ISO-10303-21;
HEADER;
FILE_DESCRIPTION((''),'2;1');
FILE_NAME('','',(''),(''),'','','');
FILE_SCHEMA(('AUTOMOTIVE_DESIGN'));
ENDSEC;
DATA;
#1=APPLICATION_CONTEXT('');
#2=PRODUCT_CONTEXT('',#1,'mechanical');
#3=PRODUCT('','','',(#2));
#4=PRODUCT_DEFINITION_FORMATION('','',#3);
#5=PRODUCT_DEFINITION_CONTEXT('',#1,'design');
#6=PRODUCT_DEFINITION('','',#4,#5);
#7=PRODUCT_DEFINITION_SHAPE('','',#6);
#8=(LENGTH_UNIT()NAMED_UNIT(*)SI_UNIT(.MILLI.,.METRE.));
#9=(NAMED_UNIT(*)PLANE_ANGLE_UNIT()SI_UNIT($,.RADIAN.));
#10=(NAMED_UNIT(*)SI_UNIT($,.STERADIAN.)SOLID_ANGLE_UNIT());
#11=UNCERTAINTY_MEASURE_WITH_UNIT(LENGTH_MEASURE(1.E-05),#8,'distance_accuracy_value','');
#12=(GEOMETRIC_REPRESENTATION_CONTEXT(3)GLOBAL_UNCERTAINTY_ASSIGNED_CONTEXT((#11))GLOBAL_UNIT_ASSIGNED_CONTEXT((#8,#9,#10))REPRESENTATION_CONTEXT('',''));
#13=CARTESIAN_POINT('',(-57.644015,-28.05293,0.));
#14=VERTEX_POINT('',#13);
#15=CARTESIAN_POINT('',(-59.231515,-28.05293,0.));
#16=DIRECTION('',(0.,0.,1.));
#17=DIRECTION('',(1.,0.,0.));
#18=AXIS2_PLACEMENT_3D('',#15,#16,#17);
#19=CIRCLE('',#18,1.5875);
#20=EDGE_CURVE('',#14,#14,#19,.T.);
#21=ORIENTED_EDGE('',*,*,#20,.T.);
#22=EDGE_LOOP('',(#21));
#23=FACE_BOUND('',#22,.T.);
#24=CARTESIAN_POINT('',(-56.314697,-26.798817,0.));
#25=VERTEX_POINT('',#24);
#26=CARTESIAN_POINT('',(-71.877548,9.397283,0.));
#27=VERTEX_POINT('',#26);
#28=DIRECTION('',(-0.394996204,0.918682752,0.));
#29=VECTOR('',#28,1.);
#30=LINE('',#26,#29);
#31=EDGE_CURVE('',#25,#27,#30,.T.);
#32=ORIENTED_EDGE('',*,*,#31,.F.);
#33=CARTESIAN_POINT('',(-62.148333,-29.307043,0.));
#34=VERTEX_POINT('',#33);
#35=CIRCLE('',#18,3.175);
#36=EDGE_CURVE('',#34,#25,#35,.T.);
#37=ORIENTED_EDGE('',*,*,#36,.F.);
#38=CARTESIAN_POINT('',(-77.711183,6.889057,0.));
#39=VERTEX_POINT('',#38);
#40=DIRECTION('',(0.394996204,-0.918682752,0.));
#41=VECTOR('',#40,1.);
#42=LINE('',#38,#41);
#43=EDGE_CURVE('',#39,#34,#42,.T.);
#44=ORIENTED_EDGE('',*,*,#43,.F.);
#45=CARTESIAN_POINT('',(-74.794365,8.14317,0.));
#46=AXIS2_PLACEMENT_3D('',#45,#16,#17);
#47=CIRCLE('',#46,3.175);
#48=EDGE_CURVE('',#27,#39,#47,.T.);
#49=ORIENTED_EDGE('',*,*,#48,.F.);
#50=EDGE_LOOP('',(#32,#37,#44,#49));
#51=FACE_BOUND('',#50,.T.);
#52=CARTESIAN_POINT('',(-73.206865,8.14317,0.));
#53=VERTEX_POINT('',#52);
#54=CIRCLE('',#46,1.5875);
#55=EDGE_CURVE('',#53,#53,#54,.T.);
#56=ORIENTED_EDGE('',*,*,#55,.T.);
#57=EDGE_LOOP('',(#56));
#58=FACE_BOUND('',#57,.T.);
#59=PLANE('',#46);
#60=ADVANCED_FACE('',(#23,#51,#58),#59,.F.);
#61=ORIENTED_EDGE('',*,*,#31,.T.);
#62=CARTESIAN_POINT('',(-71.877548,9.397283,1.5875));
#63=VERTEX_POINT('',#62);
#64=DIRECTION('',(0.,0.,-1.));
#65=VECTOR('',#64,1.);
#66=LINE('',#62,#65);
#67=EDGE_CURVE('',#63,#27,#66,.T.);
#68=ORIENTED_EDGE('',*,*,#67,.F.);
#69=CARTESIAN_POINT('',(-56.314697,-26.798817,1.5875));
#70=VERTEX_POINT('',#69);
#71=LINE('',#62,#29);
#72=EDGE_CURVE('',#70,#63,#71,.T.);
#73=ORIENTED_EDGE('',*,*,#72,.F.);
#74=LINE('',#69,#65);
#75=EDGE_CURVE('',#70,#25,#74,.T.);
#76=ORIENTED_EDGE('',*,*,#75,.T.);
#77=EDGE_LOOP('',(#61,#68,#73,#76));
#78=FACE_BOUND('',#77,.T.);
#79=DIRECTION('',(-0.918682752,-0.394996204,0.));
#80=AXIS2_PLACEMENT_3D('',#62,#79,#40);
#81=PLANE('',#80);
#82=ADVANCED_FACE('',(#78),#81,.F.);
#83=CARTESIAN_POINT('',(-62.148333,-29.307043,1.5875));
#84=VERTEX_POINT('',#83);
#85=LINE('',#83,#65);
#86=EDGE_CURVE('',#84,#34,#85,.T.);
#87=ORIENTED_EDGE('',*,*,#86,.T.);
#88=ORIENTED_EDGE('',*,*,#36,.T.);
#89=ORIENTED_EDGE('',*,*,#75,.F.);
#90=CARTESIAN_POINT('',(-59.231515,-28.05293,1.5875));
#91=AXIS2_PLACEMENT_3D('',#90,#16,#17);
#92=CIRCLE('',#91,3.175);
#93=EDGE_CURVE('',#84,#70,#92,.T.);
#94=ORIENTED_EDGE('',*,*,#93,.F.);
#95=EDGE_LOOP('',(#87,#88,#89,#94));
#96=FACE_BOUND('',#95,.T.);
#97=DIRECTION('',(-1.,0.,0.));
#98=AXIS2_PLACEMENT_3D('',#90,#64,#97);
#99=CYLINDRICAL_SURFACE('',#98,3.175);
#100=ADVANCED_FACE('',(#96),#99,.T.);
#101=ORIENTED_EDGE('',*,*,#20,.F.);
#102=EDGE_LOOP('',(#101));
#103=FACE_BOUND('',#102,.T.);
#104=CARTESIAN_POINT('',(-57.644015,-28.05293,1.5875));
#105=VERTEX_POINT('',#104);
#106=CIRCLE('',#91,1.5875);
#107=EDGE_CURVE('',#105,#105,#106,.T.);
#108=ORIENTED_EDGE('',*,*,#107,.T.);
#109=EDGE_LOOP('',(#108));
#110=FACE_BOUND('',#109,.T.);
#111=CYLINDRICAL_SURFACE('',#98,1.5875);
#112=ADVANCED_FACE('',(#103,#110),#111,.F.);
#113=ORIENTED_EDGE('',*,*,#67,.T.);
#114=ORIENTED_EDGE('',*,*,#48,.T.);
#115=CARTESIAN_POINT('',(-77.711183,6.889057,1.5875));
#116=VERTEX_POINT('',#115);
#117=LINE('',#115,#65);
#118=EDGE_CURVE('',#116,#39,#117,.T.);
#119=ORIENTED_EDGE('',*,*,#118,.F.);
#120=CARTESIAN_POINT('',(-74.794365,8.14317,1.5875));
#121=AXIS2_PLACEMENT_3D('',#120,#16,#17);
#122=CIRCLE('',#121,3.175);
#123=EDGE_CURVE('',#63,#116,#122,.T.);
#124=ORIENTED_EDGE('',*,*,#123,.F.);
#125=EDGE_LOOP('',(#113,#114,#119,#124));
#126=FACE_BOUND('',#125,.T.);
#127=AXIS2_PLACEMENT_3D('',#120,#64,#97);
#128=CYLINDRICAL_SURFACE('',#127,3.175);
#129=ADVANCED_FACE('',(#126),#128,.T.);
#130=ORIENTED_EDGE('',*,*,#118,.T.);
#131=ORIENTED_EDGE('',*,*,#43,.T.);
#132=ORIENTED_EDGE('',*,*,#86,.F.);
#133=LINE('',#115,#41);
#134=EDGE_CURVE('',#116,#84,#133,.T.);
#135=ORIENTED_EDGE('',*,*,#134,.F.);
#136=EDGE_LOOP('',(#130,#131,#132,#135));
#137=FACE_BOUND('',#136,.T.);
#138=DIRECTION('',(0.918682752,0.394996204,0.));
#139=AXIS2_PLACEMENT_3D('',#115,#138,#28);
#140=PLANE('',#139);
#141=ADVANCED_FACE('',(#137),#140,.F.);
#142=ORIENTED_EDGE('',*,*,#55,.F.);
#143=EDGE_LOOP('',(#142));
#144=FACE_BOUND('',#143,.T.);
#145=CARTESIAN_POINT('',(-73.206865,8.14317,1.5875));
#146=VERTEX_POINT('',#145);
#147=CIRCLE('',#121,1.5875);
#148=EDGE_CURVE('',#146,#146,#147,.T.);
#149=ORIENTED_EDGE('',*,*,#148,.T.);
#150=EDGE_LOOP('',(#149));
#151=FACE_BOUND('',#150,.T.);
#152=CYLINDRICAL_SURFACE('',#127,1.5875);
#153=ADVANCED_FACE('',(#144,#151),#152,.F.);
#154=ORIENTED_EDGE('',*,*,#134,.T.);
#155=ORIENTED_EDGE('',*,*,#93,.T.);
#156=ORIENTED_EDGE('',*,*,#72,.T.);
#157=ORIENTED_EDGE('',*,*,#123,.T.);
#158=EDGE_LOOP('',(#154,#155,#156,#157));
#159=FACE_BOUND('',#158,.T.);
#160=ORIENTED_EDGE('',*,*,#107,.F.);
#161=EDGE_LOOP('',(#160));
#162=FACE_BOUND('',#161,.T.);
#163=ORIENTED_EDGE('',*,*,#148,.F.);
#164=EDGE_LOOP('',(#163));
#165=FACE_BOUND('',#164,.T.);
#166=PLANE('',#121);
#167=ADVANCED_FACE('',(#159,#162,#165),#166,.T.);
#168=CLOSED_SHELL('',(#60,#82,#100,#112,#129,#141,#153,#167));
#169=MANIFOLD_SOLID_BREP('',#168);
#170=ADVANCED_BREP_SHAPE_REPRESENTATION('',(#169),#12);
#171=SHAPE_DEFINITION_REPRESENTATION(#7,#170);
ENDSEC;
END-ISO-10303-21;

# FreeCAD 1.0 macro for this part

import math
import FreeCAD as App
import Part
import Sketcher
Q = App.Units.Quantity

doc = App.newDocument("Part")
body = doc.addObject("PartDesign::Body", "Body")

# Sketch on XY plane
sketch1 = body.newObject("Sketcher::SketchObject", "Sketch")
sketch1.AttachmentSupport = (doc.getObject("XY_Plane"), [""])
sketch1.MapMode = "FlatFace"
sketch1.addGeometry([
    Part.LineSegment(App.Vector(-56.3, -26.8, 0), App.Vector(-71.9, 9.4, 0)),  # 0
    Part.ArcOfCircle(Part.Circle(App.Vector(-74.8, 8.1, 0), App.Vector(0, 0, 1), 3.2), math.radians(23), math.radians(203)),  # 1
    Part.LineSegment(App.Vector(-77.7, 6.9, 0), App.Vector(-62.1, -29.3, 0)),  # 2
    Part.ArcOfCircle(Part.Circle(App.Vector(-59.2, -28.1, 0), App.Vector(0, 0, 1), 3.2), math.radians(-157), math.radians(23)),  # 3
    Part.Circle(App.Vector(-59.2, -28.1, 0), App.Vector(0, 0, 1), 1.6),  # 4
    Part.Circle(App.Vector(-74.8, 8.1, 0), App.Vector(0, 0, 1), 1.6),  # 5
], False)
sketch1.addConstraint([
    Sketcher.Constraint("Tangent", 0, 2, 1, 1),
    Sketcher.Constraint("Tangent", 1, 2, 2, 1),
    Sketcher.Constraint("Tangent", 2, 2, 3, 1),
    Sketcher.Constraint("Tangent", 3, 2, 0, 1),
    Sketcher.Constraint("Coincident", 4, 3, 3, 3),
    Sketcher.Constraint("Coincident", 5, 3, 1, 3),
    Sketcher.Constraint("Equal", 1, 3),
    Sketcher.Constraint("Equal", 4, 5),
    Sketcher.Constraint("Diameter", 4, Q("0.125 in")),
    Sketcher.Constraint("Radius", 1, Q("0.125 in")),
    Sketcher.Constraint("Distance", 0, 39.4),
    Sketcher.Constraint("DistanceY", 3, 3, 1, 3, 36.1961),
    Sketcher.Constraint("DistanceY", -1, 1, 1, 3, 8.14317),
    Sketcher.Constraint("DistanceX", 1, 3, -1, 1, 74.794365),
])
pad1 = body.newObject("PartDesign::Pad", "Pad")
pad1.Profile = sketch1
pad1.Length = Q("0.0625 in")

doc.recompute()
